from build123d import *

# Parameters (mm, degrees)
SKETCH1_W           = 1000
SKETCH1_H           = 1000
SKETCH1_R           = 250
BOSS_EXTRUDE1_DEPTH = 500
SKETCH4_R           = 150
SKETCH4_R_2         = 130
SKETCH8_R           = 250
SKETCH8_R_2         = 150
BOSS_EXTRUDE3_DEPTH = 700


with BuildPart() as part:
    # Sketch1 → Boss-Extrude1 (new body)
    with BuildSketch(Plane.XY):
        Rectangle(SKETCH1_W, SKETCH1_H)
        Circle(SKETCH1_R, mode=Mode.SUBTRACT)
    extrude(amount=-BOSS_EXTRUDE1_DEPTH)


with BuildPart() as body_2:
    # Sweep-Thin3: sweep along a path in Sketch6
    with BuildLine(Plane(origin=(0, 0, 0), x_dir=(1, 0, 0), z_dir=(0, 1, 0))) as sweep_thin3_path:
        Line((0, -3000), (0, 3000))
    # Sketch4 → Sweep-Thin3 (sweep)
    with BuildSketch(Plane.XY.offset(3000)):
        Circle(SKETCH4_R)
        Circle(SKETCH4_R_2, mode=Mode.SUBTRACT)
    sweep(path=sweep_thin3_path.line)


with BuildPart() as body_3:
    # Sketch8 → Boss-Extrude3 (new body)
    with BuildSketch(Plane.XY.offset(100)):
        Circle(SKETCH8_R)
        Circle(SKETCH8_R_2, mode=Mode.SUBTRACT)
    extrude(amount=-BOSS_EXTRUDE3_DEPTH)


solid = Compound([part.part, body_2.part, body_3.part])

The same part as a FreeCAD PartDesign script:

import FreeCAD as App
import Part
import Sketcher
Q = App.Units.Quantity

doc = App.newDocument("Part")
body = doc.addObject("PartDesign::Body", "Body")

# Sketch on XY plane
sketch1 = body.newObject("Sketcher::SketchObject", "Sketch")
sketch1.AttachmentSupport = (doc.getObject("XY_Plane"), [""])
sketch1.MapMode = "FlatFace"
sketch1.addGeometry([
    Part.LineSegment(App.Vector(-500, 500, 0), App.Vector(-500, -500, 0)),  # 0
    Part.LineSegment(App.Vector(-500, -500, 0), App.Vector(500, -500, 0)),  # 1
    Part.LineSegment(App.Vector(500, -500, 0), App.Vector(500, 500, 0)),  # 2
    Part.LineSegment(App.Vector(500, 500, 0), App.Vector(-500, 500, 0)),  # 3
    Part.Circle(App.Vector(0, 0, 0), App.Vector(0, 0, 1), 250),  # 4
], False)
sketch1.addConstraint([
    Sketcher.Constraint("Coincident", 0, 2, 1, 1),
    Sketcher.Constraint("Coincident", 1, 2, 2, 1),
    Sketcher.Constraint("Coincident", 2, 2, 3, 1),
    Sketcher.Constraint("Coincident", 3, 2, 0, 1),
    Sketcher.Constraint("Vertical", 0),
    Sketcher.Constraint("Horizontal", 1),
    Sketcher.Constraint("Vertical", 2),
    Sketcher.Constraint("Horizontal", 3),
    Sketcher.Constraint("Coincident", 4, 3, -1, 1),
    Sketcher.Constraint("Symmetric", 0, 2, 2, 2, -1, 1),
    Sketcher.Constraint("Equal", 3, 0),
    Sketcher.Constraint("Diameter", 4, Q("500 mm")),
    Sketcher.Constraint("DistanceX", 1, 1, 1, 2, Q("1000 mm")),
])
pad1 = body.newObject("PartDesign::Pad", "Pad")
pad1.Profile = sketch1
pad1.Length = 500
pad1.Reversed = True
body2 = doc.addObject("PartDesign::Body", "Body001")

# Sketch on XY plane
sketch2 = body2.newObject("Sketcher::SketchObject", "Sketch001")
sketch2.AttachmentSupport = (doc.getObject("XY_Plane001"), [""])
sketch2.MapMode = "FlatFace"
sketch2.AttachmentOffset = App.Placement(App.Vector(0, 0, 3000), App.Rotation())
sketch2.addGeometry([
    Part.Circle(App.Vector(0, 0, 0), App.Vector(0, 0, 1), 150),
    Part.Circle(App.Vector(0, 0, 0), App.Vector(0, 0, 1), 130),
], False)
sketch2.addConstraint([
    Sketcher.Constraint("Coincident", 0, 3, -1, 1),
    Sketcher.Constraint("Coincident", 1, 3, -1, 1),
    Sketcher.Constraint("Diameter", 0, Q("300 mm")),
    Sketcher.Constraint("Diameter", 1, Q("260 mm")),
])

# Sketch on XZ plane
sketch3 = body2.newObject("Sketcher::SketchObject", "Sketch002")
sketch3.AttachmentSupport = (doc.getObject("XZ_Plane001"), [""])
sketch3.MapMode = "FlatFace"
sketch3.addGeometry(Part.LineSegment(App.Vector(0, 3000, 0), App.Vector(0, -3000, 0)), False)
sketch3.addConstraint([
    Sketcher.Constraint("Vertical", 0),
    Sketcher.Constraint("Symmetric", 0, 1, 0, 2, -1, 1),
    Sketcher.Constraint("DistanceY", 0, 2, 0, 1, Q("6000 mm")),
])
doc.recompute()

additivepipe = body2.newObject("PartDesign::AdditivePipe", "AdditivePipe")
additivepipe.Profile = sketch2
additivepipe.Spine = (sketch3, ["Edge1"])
body3 = doc.addObject("PartDesign::Body", "Body002")

# Sketch on XY plane
sketch4 = body3.newObject("Sketcher::SketchObject", "Sketch003")
sketch4.AttachmentSupport = (doc.getObject("XY_Plane002"), [""])
sketch4.MapMode = "FlatFace"
sketch4.AttachmentOffset = App.Placement(App.Vector(0, 0, 100), App.Rotation())
sketch4.addGeometry([
    Part.Circle(App.Vector(0, 0, 0), App.Vector(0, 0, 1), 250),
    Part.Circle(App.Vector(0, 0, 0), App.Vector(0, 0, 1), 150),
], False)
sketch4.addConstraint([
    Sketcher.Constraint("Coincident", 0, 3, -1, 1),
    Sketcher.Constraint("Coincident", 1, 3, -1, 1),
    Sketcher.Constraint("Diameter", 0, Q("500 mm")),
    Sketcher.Constraint("Diameter", 1, Q("300 mm")),
])
pad2 = body3.newObject("PartDesign::Pad", "Pad001")
pad2.Profile = sketch4
pad2.Length = 700
pad2.Reversed = True

doc.recompute()
